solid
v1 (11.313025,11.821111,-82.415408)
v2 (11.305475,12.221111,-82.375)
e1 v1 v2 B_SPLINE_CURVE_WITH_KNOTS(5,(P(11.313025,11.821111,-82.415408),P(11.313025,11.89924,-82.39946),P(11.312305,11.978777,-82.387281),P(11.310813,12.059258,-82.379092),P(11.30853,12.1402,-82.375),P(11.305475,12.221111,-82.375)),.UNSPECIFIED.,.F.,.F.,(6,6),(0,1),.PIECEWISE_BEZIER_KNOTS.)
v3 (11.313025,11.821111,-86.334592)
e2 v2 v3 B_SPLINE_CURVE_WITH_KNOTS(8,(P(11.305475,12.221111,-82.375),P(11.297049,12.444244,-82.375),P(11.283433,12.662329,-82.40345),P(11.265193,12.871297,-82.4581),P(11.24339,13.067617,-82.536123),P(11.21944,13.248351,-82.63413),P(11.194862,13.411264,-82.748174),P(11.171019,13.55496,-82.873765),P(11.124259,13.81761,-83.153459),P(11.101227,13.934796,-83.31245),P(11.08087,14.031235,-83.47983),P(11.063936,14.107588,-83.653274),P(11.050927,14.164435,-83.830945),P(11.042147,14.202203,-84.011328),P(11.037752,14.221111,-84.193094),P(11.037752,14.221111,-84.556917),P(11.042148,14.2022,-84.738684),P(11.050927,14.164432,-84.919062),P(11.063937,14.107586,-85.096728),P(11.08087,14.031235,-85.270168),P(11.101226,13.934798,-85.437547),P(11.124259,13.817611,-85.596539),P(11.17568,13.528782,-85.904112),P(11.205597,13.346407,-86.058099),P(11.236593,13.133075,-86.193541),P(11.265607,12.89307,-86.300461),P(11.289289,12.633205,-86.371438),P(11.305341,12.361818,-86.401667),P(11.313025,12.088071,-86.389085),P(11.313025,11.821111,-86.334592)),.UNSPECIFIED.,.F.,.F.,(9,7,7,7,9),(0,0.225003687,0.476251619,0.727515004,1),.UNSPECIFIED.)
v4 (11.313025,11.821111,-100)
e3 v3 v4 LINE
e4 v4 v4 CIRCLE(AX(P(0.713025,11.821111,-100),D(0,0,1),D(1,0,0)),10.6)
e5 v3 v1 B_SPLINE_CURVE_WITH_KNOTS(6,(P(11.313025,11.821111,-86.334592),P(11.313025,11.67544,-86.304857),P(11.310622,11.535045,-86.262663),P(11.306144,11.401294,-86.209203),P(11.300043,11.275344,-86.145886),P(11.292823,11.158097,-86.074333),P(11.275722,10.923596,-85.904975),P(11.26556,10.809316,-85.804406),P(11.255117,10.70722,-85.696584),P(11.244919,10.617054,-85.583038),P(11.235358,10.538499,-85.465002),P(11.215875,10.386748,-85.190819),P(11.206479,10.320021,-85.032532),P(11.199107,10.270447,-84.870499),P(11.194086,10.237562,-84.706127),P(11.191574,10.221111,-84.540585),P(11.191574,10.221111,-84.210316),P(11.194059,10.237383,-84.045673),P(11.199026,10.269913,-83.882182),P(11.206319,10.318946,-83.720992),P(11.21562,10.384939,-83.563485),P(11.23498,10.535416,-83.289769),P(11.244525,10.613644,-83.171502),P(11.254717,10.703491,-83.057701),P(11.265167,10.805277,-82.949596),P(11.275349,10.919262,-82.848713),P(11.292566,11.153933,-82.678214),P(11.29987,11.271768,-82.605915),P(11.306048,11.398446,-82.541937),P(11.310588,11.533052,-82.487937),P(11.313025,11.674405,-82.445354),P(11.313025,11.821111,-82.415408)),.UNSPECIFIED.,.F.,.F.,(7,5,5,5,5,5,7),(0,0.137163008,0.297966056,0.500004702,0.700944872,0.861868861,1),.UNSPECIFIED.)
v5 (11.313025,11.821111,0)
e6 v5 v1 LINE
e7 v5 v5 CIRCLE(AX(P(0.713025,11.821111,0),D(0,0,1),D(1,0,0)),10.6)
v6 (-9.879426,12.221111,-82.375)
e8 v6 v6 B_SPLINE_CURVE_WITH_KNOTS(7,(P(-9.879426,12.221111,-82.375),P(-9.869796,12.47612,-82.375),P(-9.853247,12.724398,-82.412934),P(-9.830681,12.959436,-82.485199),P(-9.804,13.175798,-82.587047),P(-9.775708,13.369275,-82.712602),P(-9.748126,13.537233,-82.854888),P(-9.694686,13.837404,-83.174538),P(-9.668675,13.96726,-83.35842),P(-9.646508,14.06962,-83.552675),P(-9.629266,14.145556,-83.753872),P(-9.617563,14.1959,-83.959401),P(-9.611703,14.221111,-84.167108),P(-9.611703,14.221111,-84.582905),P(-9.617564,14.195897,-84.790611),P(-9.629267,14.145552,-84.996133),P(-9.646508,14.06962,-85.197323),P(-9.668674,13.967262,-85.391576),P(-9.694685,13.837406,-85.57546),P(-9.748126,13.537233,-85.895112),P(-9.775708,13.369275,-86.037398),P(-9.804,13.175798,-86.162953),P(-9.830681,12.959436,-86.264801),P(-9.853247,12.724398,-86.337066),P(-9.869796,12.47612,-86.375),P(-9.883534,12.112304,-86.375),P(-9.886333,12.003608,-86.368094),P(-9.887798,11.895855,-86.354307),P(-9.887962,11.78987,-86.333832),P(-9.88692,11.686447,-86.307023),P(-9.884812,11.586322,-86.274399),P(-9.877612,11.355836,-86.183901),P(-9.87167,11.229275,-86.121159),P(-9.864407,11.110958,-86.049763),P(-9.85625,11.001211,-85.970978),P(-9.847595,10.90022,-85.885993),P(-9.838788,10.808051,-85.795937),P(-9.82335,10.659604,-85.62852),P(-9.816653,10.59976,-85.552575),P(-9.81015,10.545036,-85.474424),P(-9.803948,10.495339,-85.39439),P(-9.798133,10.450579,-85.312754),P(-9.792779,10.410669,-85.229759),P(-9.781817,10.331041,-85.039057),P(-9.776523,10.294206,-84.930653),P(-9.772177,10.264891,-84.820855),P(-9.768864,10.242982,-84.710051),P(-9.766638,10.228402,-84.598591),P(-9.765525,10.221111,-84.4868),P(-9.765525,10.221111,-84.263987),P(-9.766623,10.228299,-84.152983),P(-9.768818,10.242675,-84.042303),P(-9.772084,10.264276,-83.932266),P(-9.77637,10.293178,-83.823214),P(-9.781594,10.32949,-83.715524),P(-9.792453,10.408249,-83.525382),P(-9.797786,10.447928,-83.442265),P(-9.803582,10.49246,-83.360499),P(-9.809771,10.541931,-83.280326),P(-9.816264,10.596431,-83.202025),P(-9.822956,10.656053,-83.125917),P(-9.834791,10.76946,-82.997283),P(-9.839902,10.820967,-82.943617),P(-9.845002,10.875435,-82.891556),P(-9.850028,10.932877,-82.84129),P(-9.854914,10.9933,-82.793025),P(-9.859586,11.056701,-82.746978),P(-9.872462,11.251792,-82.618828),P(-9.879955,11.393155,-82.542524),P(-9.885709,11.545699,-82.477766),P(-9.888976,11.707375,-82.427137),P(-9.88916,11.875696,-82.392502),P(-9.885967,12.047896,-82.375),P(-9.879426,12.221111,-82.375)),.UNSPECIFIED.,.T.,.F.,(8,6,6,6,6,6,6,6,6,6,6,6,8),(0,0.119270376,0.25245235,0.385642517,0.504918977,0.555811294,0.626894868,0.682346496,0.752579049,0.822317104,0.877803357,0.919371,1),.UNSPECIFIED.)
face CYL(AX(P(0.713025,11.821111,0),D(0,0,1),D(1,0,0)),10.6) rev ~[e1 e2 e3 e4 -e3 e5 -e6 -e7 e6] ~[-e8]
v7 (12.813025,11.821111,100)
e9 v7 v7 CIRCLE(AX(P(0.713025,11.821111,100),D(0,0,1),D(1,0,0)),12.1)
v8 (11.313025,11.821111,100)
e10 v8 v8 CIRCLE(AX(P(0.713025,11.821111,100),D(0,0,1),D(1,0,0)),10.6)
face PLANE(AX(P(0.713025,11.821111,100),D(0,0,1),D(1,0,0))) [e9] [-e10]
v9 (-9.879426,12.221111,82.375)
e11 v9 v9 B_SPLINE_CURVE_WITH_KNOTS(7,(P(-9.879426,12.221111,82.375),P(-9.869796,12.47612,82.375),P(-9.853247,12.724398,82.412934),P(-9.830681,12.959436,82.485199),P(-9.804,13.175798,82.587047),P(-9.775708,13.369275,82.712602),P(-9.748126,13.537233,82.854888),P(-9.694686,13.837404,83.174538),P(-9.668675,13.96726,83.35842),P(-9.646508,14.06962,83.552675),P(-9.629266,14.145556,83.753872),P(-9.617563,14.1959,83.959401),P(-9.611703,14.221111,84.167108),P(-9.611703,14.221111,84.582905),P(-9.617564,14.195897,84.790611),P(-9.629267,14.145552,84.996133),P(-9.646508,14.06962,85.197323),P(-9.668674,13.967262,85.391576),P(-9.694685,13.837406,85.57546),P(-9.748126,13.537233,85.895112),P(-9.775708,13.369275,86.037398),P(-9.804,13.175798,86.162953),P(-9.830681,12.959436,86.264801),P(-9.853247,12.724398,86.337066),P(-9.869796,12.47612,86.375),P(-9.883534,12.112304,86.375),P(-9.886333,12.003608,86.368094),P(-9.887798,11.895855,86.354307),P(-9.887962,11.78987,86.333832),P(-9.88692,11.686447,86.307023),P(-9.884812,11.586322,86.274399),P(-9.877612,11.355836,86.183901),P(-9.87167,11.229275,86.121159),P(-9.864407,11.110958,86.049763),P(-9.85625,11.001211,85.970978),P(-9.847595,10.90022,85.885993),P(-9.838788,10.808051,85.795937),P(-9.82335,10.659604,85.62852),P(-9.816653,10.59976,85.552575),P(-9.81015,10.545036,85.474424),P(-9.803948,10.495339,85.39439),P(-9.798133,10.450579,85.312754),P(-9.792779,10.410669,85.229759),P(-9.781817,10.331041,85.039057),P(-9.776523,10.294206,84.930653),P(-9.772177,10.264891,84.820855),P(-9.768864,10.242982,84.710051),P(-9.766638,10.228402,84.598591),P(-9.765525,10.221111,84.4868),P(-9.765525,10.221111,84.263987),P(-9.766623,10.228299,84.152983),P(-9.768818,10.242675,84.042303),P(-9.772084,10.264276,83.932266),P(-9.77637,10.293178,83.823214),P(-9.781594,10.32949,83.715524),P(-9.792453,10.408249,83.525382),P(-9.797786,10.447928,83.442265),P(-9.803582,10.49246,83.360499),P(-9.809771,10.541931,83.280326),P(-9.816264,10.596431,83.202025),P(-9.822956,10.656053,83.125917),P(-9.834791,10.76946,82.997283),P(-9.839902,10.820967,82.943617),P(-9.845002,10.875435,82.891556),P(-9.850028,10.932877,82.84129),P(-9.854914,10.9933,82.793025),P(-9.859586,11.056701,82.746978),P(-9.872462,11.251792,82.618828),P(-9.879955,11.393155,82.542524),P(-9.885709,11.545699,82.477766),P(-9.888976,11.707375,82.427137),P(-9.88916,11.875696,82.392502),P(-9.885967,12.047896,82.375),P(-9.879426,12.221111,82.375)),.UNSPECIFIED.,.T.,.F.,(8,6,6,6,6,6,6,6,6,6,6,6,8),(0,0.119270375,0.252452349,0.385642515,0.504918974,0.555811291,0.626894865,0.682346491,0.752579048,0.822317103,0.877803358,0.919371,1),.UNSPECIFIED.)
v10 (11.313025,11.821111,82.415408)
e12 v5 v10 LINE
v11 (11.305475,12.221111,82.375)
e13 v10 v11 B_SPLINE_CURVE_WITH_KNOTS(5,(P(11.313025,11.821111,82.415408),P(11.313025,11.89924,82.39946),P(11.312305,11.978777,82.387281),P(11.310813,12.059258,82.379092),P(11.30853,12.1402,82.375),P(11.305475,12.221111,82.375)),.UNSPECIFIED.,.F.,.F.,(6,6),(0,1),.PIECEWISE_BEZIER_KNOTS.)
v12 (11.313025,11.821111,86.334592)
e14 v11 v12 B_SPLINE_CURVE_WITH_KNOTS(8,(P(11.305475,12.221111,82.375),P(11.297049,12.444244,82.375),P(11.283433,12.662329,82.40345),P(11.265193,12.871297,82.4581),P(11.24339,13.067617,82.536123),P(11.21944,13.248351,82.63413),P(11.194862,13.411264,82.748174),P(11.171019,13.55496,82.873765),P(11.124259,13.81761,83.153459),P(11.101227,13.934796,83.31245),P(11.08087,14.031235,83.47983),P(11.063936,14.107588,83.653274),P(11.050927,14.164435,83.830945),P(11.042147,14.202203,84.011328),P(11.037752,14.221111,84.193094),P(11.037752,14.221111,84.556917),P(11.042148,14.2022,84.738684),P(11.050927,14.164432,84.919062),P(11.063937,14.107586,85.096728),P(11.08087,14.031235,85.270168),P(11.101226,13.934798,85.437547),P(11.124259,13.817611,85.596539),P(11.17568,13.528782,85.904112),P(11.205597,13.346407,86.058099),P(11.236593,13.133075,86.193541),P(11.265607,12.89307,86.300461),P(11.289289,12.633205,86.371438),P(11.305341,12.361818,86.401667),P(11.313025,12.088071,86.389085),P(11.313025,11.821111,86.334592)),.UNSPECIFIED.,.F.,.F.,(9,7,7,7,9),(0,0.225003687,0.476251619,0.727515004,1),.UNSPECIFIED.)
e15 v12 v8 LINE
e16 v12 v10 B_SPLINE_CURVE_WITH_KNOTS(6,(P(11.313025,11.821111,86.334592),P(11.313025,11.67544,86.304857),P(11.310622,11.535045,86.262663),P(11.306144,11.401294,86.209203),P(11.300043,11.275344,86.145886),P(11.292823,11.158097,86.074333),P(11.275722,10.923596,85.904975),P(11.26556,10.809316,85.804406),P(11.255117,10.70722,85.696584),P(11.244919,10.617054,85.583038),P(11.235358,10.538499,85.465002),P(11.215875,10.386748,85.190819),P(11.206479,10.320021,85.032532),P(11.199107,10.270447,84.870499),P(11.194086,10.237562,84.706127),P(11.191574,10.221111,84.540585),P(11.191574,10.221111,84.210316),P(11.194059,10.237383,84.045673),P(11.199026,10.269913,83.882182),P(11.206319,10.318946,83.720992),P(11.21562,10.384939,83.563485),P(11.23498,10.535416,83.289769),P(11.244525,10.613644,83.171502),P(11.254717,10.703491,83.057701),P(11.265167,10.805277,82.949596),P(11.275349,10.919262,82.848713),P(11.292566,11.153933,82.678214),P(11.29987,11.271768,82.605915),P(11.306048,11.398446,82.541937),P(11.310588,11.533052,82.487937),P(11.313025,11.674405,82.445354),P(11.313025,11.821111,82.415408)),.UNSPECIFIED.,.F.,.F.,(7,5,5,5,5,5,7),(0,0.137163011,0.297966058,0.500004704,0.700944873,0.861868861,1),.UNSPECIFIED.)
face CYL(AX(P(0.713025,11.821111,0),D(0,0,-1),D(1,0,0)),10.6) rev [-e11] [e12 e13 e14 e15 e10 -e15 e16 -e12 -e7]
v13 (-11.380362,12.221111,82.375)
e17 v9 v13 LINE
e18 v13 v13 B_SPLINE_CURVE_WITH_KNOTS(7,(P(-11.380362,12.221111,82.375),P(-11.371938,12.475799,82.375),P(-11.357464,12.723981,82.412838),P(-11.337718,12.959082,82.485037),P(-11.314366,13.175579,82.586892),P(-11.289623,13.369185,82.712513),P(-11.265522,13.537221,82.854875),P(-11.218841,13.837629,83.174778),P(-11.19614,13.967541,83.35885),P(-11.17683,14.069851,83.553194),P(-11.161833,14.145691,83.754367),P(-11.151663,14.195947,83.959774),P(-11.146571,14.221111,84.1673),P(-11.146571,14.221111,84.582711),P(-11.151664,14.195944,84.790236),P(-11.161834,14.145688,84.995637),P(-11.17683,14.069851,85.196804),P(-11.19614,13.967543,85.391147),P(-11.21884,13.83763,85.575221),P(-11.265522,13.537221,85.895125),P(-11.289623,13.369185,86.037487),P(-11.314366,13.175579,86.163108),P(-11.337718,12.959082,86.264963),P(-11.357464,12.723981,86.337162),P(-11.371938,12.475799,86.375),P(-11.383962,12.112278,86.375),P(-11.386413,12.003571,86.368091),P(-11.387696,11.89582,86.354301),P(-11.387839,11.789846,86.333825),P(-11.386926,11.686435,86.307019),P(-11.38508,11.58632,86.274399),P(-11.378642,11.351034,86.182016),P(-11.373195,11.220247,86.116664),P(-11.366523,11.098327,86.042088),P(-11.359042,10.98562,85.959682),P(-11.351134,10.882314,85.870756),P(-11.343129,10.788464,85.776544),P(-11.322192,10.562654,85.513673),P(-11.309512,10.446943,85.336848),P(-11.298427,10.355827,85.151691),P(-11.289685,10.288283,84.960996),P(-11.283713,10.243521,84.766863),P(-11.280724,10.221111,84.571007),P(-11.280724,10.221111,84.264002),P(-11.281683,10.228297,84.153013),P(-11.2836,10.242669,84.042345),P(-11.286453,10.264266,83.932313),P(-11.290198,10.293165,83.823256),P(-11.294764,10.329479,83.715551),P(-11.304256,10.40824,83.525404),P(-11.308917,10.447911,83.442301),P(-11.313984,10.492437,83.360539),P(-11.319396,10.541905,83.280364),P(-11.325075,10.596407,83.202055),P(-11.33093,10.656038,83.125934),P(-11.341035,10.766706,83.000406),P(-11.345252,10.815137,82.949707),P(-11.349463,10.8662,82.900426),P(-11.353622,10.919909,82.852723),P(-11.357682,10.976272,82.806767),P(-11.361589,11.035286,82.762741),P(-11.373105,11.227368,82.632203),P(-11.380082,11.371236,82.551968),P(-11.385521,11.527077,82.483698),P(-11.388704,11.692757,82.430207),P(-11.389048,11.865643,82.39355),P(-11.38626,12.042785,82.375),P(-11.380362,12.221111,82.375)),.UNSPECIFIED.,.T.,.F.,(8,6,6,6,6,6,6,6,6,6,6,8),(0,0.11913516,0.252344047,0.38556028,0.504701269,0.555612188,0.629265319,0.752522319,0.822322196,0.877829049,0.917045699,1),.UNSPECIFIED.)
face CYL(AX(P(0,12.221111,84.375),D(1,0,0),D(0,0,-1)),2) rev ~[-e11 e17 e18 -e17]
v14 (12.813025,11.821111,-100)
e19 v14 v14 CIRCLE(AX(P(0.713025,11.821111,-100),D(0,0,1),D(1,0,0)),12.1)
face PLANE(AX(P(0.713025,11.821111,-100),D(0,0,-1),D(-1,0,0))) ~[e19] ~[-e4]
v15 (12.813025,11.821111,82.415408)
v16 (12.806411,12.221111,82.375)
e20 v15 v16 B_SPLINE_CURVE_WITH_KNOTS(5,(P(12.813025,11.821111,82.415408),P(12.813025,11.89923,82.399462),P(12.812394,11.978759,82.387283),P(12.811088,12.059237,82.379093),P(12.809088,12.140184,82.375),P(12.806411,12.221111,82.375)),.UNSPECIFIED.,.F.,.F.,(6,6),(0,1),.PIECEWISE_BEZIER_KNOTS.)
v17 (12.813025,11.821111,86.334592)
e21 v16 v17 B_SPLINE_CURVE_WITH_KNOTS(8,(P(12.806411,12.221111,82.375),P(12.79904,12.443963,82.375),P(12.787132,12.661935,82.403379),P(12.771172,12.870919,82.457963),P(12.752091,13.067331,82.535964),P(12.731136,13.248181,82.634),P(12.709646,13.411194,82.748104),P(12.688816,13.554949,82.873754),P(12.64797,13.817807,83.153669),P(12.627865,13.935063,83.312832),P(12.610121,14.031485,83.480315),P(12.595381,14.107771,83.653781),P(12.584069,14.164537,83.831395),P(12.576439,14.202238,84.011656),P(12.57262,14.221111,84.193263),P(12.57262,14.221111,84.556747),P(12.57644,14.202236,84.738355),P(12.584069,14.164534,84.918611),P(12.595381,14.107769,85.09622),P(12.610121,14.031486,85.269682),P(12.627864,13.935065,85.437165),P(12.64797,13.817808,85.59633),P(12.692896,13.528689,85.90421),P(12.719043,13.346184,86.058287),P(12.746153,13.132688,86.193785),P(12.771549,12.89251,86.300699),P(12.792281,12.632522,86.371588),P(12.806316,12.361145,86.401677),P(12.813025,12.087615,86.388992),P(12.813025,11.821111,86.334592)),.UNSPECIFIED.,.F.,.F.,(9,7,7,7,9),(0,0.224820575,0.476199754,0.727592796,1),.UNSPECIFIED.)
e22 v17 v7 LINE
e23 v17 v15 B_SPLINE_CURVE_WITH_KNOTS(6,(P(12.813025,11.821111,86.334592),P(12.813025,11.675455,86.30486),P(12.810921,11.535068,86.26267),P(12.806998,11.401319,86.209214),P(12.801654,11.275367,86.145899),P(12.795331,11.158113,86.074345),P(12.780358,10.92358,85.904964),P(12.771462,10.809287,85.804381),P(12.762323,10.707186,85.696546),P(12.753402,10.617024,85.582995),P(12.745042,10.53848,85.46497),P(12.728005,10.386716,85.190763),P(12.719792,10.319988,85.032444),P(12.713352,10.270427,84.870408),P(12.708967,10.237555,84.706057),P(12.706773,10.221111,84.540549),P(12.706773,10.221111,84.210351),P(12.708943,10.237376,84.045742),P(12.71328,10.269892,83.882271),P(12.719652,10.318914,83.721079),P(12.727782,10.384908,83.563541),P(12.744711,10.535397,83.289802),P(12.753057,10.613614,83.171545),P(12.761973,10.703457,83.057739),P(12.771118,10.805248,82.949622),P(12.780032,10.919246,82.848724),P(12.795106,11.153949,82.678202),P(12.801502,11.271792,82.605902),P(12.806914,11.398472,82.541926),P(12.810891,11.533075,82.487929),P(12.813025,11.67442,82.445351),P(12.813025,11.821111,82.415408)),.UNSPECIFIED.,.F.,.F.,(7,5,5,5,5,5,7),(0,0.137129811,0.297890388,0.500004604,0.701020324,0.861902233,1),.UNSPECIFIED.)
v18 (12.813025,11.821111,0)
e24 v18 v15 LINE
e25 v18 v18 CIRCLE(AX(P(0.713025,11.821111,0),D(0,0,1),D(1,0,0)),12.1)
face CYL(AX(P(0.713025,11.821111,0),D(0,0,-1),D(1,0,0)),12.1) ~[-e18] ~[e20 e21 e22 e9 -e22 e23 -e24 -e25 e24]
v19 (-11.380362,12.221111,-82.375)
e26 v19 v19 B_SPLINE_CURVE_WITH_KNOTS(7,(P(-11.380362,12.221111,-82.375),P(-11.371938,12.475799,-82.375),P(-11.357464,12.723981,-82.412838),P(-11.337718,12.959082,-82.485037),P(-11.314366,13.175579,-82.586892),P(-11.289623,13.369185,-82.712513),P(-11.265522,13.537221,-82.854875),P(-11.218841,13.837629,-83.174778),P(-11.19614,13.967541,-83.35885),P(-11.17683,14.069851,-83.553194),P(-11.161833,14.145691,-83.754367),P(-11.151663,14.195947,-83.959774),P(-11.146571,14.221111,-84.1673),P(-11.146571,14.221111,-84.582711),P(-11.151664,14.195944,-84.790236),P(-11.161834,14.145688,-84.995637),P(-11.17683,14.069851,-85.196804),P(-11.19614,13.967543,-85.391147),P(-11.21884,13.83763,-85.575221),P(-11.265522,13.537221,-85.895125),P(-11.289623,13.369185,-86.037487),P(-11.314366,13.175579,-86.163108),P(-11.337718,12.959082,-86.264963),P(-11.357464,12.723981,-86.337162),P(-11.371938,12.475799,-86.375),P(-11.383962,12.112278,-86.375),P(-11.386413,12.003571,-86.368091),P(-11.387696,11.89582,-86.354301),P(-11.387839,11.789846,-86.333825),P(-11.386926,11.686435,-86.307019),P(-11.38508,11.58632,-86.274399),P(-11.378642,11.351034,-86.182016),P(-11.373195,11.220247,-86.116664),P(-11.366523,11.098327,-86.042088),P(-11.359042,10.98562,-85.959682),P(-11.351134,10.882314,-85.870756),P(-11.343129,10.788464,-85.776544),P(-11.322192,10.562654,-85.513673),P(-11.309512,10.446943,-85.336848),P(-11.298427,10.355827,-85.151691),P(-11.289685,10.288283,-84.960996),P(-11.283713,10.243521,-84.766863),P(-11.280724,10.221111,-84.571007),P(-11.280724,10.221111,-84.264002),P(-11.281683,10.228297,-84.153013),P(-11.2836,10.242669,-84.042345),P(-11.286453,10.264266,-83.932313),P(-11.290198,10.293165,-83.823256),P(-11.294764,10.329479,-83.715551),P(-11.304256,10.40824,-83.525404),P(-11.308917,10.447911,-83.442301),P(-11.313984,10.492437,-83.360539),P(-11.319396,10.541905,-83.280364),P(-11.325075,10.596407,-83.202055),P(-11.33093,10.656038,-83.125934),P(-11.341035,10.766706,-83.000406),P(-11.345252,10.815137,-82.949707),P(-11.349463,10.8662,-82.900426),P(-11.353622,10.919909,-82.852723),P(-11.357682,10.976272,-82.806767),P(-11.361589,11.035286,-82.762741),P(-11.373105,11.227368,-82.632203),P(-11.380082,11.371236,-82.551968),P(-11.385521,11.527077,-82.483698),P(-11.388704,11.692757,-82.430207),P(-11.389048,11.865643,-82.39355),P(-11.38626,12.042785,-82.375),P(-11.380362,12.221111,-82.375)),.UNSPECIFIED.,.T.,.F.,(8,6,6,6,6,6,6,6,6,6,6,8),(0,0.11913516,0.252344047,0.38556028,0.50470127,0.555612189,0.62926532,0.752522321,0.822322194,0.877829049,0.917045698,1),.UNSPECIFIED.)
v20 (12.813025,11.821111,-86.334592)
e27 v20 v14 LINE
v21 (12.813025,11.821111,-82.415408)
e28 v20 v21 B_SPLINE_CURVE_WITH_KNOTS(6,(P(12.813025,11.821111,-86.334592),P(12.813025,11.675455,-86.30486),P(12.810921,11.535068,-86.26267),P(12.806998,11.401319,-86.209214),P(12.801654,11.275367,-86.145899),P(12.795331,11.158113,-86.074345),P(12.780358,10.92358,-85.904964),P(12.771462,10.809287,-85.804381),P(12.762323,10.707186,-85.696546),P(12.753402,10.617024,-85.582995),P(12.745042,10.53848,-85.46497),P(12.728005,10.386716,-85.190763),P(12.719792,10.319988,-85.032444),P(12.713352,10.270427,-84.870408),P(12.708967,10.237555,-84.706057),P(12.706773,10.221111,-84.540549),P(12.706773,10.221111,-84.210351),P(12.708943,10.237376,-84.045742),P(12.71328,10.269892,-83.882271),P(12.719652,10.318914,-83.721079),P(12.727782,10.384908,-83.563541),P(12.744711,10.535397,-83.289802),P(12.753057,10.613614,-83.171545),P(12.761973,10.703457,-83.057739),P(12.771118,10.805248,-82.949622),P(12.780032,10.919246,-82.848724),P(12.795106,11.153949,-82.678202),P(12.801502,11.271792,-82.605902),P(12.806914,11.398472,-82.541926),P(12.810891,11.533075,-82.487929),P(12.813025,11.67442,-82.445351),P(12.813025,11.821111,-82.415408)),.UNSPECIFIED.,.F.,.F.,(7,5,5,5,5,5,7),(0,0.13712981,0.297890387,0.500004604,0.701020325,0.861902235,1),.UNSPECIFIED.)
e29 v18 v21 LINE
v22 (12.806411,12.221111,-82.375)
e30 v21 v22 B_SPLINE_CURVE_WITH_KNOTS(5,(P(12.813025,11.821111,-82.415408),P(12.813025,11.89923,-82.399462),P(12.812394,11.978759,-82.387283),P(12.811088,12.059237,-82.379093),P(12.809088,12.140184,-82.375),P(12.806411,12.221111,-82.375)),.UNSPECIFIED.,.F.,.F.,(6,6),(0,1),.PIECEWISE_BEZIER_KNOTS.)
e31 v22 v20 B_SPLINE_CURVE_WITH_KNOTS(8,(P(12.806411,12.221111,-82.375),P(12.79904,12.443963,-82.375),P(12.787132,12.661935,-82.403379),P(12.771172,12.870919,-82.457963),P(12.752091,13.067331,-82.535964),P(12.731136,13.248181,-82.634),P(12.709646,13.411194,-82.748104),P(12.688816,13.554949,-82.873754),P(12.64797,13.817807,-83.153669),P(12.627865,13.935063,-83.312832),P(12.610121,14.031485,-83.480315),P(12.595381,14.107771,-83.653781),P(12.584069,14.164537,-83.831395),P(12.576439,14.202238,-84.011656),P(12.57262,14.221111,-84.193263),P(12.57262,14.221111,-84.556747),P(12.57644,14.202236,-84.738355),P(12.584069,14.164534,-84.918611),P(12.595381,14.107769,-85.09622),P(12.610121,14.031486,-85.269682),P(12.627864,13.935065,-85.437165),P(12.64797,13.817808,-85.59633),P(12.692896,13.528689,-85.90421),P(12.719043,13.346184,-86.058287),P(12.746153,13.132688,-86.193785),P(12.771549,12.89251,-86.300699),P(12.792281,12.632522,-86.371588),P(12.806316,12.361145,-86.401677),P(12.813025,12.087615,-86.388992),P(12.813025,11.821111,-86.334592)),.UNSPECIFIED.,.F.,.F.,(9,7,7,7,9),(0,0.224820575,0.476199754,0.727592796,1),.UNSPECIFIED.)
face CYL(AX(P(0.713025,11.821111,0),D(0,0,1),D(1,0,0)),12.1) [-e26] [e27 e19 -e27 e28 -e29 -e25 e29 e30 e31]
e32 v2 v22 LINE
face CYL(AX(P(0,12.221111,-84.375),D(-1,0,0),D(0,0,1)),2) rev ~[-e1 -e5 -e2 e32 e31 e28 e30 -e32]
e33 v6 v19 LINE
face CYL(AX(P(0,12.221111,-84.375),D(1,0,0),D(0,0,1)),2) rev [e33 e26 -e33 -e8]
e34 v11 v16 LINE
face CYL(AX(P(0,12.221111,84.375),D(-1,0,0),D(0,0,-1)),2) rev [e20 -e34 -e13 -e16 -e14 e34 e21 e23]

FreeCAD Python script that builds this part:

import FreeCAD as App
import Part
import Sketcher
from FreeCAD import Vector
Q = App.Units.Quantity

doc = App.newDocument("Part")
body = doc.addObject("PartDesign::Body", "Body")

# Sketch on XY plane
sketch1 = body.newObject("Sketcher::SketchObject", "Sketch")
sketch1.AttachmentSupport = (doc.getObject("XY_Plane"), [""])
sketch1.MapMode = "FlatFace"
sketch1.addGeometry([
    Part.Circle(Vector(0.713025, 11.821111, 0), Vector(0, 0, 1), 12.1),
    Part.Circle(Vector(0.713025, 11.821111, 0), Vector(0, 0, 1), 10.6),
], False)
sketch1.addConstraint([
    Sketcher.Constraint("Coincident", 1, 3, 0, 3),
    Sketcher.Constraint("Diameter", 0, Q("24.2 mm")),
    Sketcher.Constraint("Diameter", 1, Q("21.2 mm")),
    Sketcher.Constraint("DistanceY", -1, 1, 0, 3, Q("11.821111 mm")),
    Sketcher.Constraint("DistanceX", -1, 1, 0, 3, Q("0.713025 mm")),
])
pad1 = body.newObject("PartDesign::Pad", "Pad")
pad1.Profile = sketch1
pad1.Length = 100

# Sketch on YZ plane
sketch2 = body.newObject("Sketcher::SketchObject", "Sketch001")
sketch2.AttachmentSupport = (doc.getObject("YZ_Plane"), [""])
sketch2.MapMode = "FlatFace"
sketch2.addGeometry([
    Part.Circle(Vector(12.221111, 84.375, 0), Vector(0, 0, 1), 2),
    Part.Circle(Vector(12.221111, 151.625, 0), Vector(0, 0, 1), 2),
], False)
sketch2.addConstraint([
    Sketcher.Constraint("Equal", 0, 1),
    Sketcher.Constraint("Vertical", 0, 3, 1, 3),
    Sketcher.Constraint("Diameter", 0, Q("4 mm")),
    Sketcher.Constraint("DistanceY", 0, 3, 1, 3, Q("67.25 mm")),
    Sketcher.Constraint("DistanceY", -1, 1, 0, 3, Q("84.375 mm")),
    Sketcher.Constraint("DistanceX", -1, 1, 0, 3, Q("12.221111 mm")),
])
pocket1 = body.newObject("PartDesign::Pocket", "Pocket")
pocket1.Profile = sketch2
pocket1.Length = 209.233136
pocket1.Midplane = True
doc.recompute()

mirrored = body.newObject("PartDesign::Mirrored", "Mirrored")
mirrored.Originals = [pad1, pocket1]
mirrored.MirrorPlane = (doc.getObject("XY_Plane"), [""])
body.Tip = mirrored

doc.recompute()
